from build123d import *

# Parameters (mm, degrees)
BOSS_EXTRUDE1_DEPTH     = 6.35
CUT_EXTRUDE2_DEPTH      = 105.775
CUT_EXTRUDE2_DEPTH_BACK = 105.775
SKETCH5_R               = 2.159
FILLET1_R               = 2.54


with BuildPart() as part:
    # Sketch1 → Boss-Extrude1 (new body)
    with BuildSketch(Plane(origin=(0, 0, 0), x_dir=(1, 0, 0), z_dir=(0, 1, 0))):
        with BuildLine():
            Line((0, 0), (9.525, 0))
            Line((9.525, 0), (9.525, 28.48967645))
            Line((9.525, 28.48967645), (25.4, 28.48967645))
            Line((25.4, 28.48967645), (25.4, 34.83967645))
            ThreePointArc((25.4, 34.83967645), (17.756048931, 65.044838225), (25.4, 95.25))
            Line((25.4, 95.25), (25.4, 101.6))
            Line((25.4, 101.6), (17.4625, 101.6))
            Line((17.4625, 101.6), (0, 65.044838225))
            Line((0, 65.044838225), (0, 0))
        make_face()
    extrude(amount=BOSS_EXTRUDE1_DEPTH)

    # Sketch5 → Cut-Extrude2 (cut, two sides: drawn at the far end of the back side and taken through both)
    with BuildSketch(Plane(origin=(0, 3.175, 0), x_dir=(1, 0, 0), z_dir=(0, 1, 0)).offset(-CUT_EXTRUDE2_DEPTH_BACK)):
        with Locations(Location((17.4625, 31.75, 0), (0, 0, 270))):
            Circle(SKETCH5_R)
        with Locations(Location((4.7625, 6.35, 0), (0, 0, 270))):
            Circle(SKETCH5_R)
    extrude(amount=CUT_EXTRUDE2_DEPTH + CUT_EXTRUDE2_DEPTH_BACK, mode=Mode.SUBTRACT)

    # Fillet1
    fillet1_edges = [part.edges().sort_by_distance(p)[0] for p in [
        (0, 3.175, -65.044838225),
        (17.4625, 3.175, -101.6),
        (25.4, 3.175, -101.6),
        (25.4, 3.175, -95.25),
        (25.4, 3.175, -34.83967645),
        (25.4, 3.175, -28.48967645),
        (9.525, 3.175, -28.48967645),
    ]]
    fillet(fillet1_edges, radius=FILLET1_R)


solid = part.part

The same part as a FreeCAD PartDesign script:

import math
import FreeCAD as App
import Part
import Sketcher

V = App.Vector
Q = App.Units.Quantity


def edges_at(feature, points):
    """Names of the edges that pass closest to the given points."""
    edges = feature.Shape.Edges
    near = lambda p: min(range(len(edges)), key=lambda i: edges[i].distToShape(Part.Vertex(*p))[0])
    return sorted({f"Edge{near(p) + 1}" for p in points})

doc = App.newDocument("Part")
params = doc.addObject("Spreadsheet::Sheet", "Params")
for row, (alias, value) in enumerate([
    ("sketch1_radius", "2.5 in"),
    ("sketch1_height", "0.25 in"),
    ("sketch1_width", "0.375 in"),
    ("sketch1_width2", "0.3125 in"),
    ("pad1_length", "0.25 in"),
    ("sketch2_diameter", "0.17 in"),
    ("fillet_radius", "0.1 in"),
], start=1):
    params.set(f"A{row}", alias)
    params.set(f"B{row}", "=" + value)
    params.setAlias(f"B{row}", alias)

body = doc.addObject("PartDesign::Body", "Body")

# Sketch on XZ plane
sketch1 = body.newObject("Sketcher::SketchObject", "Sketch")
sketch1.AttachmentSupport = (doc.getObject("XZ_Plane"), [""])
sketch1.MapMode = "FlatFace"
sketch1.addGeometry([
    Part.LineSegment(V(0, 0, 0), V(9.525, 0, 0)),  # 0
    Part.LineSegment(V(9.525, 0, 0), V(9.525, -28.489676, 0)),  # 1
    Part.LineSegment(V(9.525, -28.489676, 0), V(25.4, -28.489676, 0)),  # 2
    Part.LineSegment(V(25.4, -28.489676, 0), V(25.4, -34.839676, 0)),  # 3
    Part.ArcOfCircle(Part.Circle(V(81.256049, -65.044838, 0), V(0, 0, 1), 63.5), math.radians(151.596898), math.radians(208.403102)),  # 4
    Part.LineSegment(V(25.4, -95.25, 0), V(25.4, -101.6, 0)),  # 5
    Part.LineSegment(V(25.4, -101.6, 0), V(17.4625, -101.6, 0)),  # 6
    Part.LineSegment(V(17.4625, -101.6, 0), V(0, -65.044838, 0)),  # 7
    Part.LineSegment(V(0, -65.044838, 0), V(0, 0, 0)),  # 8
], False)
sketch1.addConstraint([
    Sketcher.Constraint("Coincident", 0, 2, 1, 1),
    Sketcher.Constraint("Coincident", 1, 2, 2, 1),
    Sketcher.Constraint("Coincident", 2, 2, 3, 1),
    Sketcher.Constraint("Coincident", 3, 2, 4, 1),
    Sketcher.Constraint("Coincident", 4, 2, 5, 1),
    Sketcher.Constraint("Coincident", 5, 2, 6, 1),
    Sketcher.Constraint("Coincident", 6, 2, 7, 1),
    Sketcher.Constraint("Coincident", 7, 2, 8, 1),
    Sketcher.Constraint("Coincident", 8, 2, 0, 1),
    Sketcher.Constraint("Horizontal", 0),
    Sketcher.Constraint("Vertical", 1),
    Sketcher.Constraint("Horizontal", 2),
    Sketcher.Constraint("Vertical", 3),
    Sketcher.Constraint("Vertical", 5),
    Sketcher.Constraint("Horizontal", 6),
    Sketcher.Constraint("Vertical", 8),
    Sketcher.Constraint("Coincident", 8, 2, -1, 1),
    Sketcher.Constraint("Horizontal", 4, 3, 7, 2),
    Sketcher.Constraint("Vertical", 3, 2, 4, 2),
    Sketcher.Constraint("Equal", 3, 5),
    Sketcher.Constraint("Radius", 4, Q("2.5 in")),
    Sketcher.Constraint("DistanceX", -1, 1, 2, 2, Q("1 in")),
    Sketcher.Constraint("DistanceY", 5, 2, -1, 1, Q("4 in")),
    Sketcher.Constraint("DistanceY", 3, 2, 3, 1, Q("0.25 in")),
    Sketcher.Constraint("DistanceX", 0, 1, 0, 2, Q("0.375 in")),
    Sketcher.Constraint("DistanceX", 6, 2, 6, 1, Q("0.3125 in")),
    Sketcher.Constraint("DistanceY", 8, 1, 8, 2, Q("65.044838 mm")),
])
sketch1.setExpression("Constraints[20]", "Params.sketch1_radius")
sketch1.setExpression("Constraints[23]", "Params.sketch1_height")
sketch1.setExpression("Constraints[24]", "Params.sketch1_width")
sketch1.setExpression("Constraints[25]", "Params.sketch1_width2")
pad1 = body.newObject("PartDesign::Pad", "Pad")
pad1.Profile = sketch1
pad1.setExpression("Length", "Params.pad1_length")
pad1.Reversed = True

# Sketch on XZ plane
sketch2 = body.newObject("Sketcher::SketchObject", "Sketch001")
sketch2.AttachmentSupport = (doc.getObject("XZ_Plane"), [""])
sketch2.MapMode = "FlatFace"
sketch2.AttachmentOffset = App.Placement(V(0, 0, -0.125 * 25.4), App.Rotation())
sketch2.addGeometry([
    Part.Circle(V(17.4625, -31.75, 0), V(0, 0, 1), 2.159),
    Part.Circle(V(4.7625, -6.35, 0), V(0, 0, 1), 2.159),
], False)
sketch2.addConstraint([
    Sketcher.Constraint("Equal", 0, 1),
    Sketcher.Constraint("Diameter", 0, Q("0.17 in")),
    Sketcher.Constraint("DistanceY", 0, 3, 1, 3, Q("1 in")),
    Sketcher.Constraint("DistanceX", 1, 3, 0, 3, Q("0.5 in")),
    Sketcher.Constraint("DistanceY", 0, 3, -1, 1, Q("1.25 in")),
    Sketcher.Constraint("DistanceX", -1, 1, 0, 3, Q("0.6875 in")),
])
sketch2.setExpression("Constraints[1]", "Params.sketch2_diameter")
pocket1 = body.newObject("PartDesign::Pocket", "Pocket")
pocket1.Profile = sketch2
pocket1.Type = "ThroughAll"
pocket1.Midplane = True
doc.recompute()

fillet = body.newObject("PartDesign::Fillet", "Fillet")
fillet.Base = (pocket1, edges_at(pocket1, [
    (0, 3.175, -65.045),
    (17.462, 3.175, -101.6),
    (25.4, 3.175, -101.6),
    (25.4, 3.175, -95.25),
    (25.4, 3.175, -34.84),
    (25.4, 3.175, -28.49),
    (9.525, 3.175, -28.49),
]))
fillet.setExpression("Radius", "Params.fillet_radius")

doc.recompute()
